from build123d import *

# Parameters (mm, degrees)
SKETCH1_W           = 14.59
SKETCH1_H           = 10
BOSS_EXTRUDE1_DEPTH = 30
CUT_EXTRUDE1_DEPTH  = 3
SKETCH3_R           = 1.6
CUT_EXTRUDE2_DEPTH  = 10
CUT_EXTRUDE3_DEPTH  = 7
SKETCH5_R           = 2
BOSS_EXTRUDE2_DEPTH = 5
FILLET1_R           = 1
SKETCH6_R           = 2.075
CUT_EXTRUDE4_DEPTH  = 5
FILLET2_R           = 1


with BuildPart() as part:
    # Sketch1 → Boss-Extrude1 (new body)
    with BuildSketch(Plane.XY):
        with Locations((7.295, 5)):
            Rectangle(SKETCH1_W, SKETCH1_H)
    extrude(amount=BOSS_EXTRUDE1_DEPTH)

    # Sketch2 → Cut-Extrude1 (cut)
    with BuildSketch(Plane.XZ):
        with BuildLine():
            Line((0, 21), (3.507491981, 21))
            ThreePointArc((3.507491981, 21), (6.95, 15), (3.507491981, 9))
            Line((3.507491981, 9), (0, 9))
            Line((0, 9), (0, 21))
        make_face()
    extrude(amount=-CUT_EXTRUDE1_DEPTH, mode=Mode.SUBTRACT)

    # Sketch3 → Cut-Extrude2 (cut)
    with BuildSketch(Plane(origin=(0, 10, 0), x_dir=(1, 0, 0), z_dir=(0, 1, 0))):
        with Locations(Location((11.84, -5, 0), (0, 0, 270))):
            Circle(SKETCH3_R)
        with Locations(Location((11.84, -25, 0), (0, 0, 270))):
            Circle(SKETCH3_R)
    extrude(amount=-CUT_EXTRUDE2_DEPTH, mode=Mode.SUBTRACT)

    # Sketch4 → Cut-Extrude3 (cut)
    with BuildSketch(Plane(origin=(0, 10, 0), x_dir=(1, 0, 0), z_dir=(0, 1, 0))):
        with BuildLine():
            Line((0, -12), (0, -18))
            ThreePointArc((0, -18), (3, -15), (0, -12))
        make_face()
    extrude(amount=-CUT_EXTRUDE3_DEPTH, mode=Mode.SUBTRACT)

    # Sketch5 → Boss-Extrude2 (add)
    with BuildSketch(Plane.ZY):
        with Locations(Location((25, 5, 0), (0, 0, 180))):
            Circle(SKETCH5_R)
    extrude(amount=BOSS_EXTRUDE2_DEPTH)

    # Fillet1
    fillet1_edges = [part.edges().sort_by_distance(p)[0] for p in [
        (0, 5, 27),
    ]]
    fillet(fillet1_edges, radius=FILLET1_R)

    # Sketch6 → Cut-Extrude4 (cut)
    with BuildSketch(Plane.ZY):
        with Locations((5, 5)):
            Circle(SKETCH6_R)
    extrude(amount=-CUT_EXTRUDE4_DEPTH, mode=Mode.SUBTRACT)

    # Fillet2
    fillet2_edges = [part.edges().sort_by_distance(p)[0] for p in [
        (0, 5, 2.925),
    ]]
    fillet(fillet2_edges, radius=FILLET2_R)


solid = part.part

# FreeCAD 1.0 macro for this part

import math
import FreeCAD as App
import Part
import Sketcher

V = App.Vector


def edges_at(feature, points):
    """Names of the edges that pass closest to the given points."""
    edges = feature.Shape.Edges
    near = lambda p: min(range(len(edges)), key=lambda i: edges[i].distToShape(Part.Vertex(*p))[0])
    return sorted({f"Edge{near(p) + 1}" for p in points})

doc = App.newDocument("Part")
body = doc.addObject("PartDesign::Body", "Body")

sketch1 = body.newObject("Sketcher::SketchObject", "Sketch")
sketch1.AttachmentSupport = (doc.getObject("XY_Plane"), [""])
sketch1.MapMode = "FlatFace"
sketch1.addGeometry([
    Part.LineSegment(V(0, 10, 0), V(0, 0, 0)),
    Part.LineSegment(V(0, 0, 0), V(14.59, 0, 0)),
    Part.LineSegment(V(14.59, 0, 0), V(14.59, 10, 0)),
    Part.LineSegment(V(14.59, 10, 0), V(0, 10, 0)),
], False)
sketch1.addConstraint([
    Sketcher.Constraint("Coincident", 0, 2, 1, 1),
    Sketcher.Constraint("Coincident", 1, 2, 2, 1),
    Sketcher.Constraint("Coincident", 2, 2, 3, 1),
    Sketcher.Constraint("Coincident", 3, 2, 0, 1),
    Sketcher.Constraint("Vertical", 0),
    Sketcher.Constraint("Horizontal", 1),
    Sketcher.Constraint("Vertical", 2),
    Sketcher.Constraint("Horizontal", 3),
    Sketcher.Constraint("Coincident", 0, 2, -1, 1),
    Sketcher.Constraint("DistanceY", 0, 2, 0, 1, 10.0),
    Sketcher.Constraint("DistanceX", 1, 1, 1, 2, 14.59),
])
pad1 = body.newObject("PartDesign::Pad", "Pad")
pad1.Profile = sketch1
pad1.Length = 30

sketch2 = body.newObject("Sketcher::SketchObject", "Sketch001")
sketch2.AttachmentSupport = (doc.getObject("XZ_Plane"), [""])
sketch2.MapMode = "FlatFace"
sketch2.addGeometry([
    Part.LineSegment(V(3.507492, 21, 0), V(0, 21, 0)),
    Part.LineSegment(V(0, 21, 0), V(0, 9, 0)),
    Part.LineSegment(V(0, 9, 0), V(3.507492, 9, 0)),
    Part.ArcOfCircle(Part.Circle(V(0, 15, 0), V(0, 0, 1), 6.95), math.radians(-59.690213), math.radians(59.690213)),
], False)
sketch2.addConstraint([
    Sketcher.Constraint("Coincident", 0, 2, 1, 1),
    Sketcher.Constraint("Coincident", 1, 2, 2, 1),
    Sketcher.Constraint("Coincident", 2, 2, 3, 1),
    Sketcher.Constraint("Coincident", 3, 2, 0, 1),
    Sketcher.Constraint("Horizontal", 0),
    Sketcher.Constraint("Vertical", 1),
    Sketcher.Constraint("Horizontal", 2),
    Sketcher.Constraint("PointOnObject", 3, 3, -2),
    Sketcher.Constraint("PointOnObject", 0, 2, -2),
    Sketcher.Constraint("Vertical", 2, 2, 3, 2),
    Sketcher.Constraint("DistanceY", 1, 2, 1, 1, 12.0),
    Sketcher.Constraint("Radius", 3, 6.95),
    Sketcher.Constraint("DistanceY", -1, 1, 3, 3, 15.0),
])
pocket1 = body.newObject("PartDesign::Pocket", "Pocket")
pocket1.Profile = sketch2
pocket1.Length = 3

sketch3 = body.newObject("Sketcher::SketchObject", "Sketch002")
sketch3.AttachmentSupport = (doc.getObject("XZ_Plane"), [""])
sketch3.MapMode = "FlatFace"
sketch3.AttachmentOffset = App.Placement(V(0, 0, -10), App.Rotation())
sketch3.addGeometry([
    Part.Circle(V(11.84, 5, 0), V(0, 0, 1), 1.6),
    Part.Circle(V(11.84, 25, 0), V(0, 0, 1), 1.6),
], False)
sketch3.addConstraint([
    Sketcher.Constraint("Equal", 0, 1),
    Sketcher.Constraint("Vertical", 0, 3, 1, 3),
    Sketcher.Constraint("Diameter", 0, 3.2),
    Sketcher.Constraint("DistanceY", -1, 1, 0, 3, 5.0),
    Sketcher.Constraint("DistanceY", -1, 1, 1, 3, 25.0),
    Sketcher.Constraint("DistanceX", -1, 1, 0, 3, 11.84),
])
pocket2 = body.newObject("PartDesign::Pocket", "Pocket001")
pocket2.Profile = sketch3
pocket2.Length = 10
pocket2.Reversed = True

sketch4 = body.newObject("Sketcher::SketchObject", "Sketch003")
sketch4.AttachmentSupport = (doc.getObject("XZ_Plane"), [""])
sketch4.MapMode = "FlatFace"
sketch4.AttachmentOffset = App.Placement(V(0, 0, -10), App.Rotation())
sketch4.addGeometry([
    Part.LineSegment(V(0, 12, 0), V(0, 18, 0)),
    Part.ArcOfCircle(Part.Circle(V(0, 15, 0), V(0, 0, 1), 3), math.radians(-90), math.radians(90)),
], False)
sketch4.addConstraint([
    Sketcher.Constraint("Coincident", 0, 1, 1, 1),
    Sketcher.Constraint("Coincident", 1, 2, 0, 2),
    Sketcher.Constraint("Vertical", 0),
    Sketcher.Constraint("PointOnObject", 1, 3, -2),
    Sketcher.Constraint("PointOnObject", 0, 1, -2),
    Sketcher.Constraint("Radius", 1, 3.0),
    Sketcher.Constraint("DistanceY", -1, 1, 1, 3, 15.0),
])
pocket3 = body.newObject("PartDesign::Pocket", "Pocket002")
pocket3.Profile = sketch4
pocket3.Length = 7
pocket3.Reversed = True

sketch5 = body.newObject("Sketcher::SketchObject", "Sketch004")
sketch5.AttachmentSupport = (doc.getObject("YZ_Plane"), [""])
sketch5.MapMode = "FlatFace"
sketch5.addGeometry(Part.Circle(V(5, 25, 0), V(0, 0, 1), 2), False)
sketch5.addConstraint([
    Sketcher.Constraint("Diameter", 0, 4.0),
    Sketcher.Constraint("DistanceX", -1, 1, 0, 3, 5.0),
    Sketcher.Constraint("DistanceY", -1, 1, 0, 3, 25.0),
])
pad2 = body.newObject("PartDesign::Pad", "Pad001")
pad2.Profile = sketch5
pad2.Length = 5
pad2.Reversed = True
doc.recompute()

fillet = body.newObject("PartDesign::Fillet", "Fillet")
fillet.Base = (pad2, edges_at(pad2, [(0, 5, 27)]))
fillet.Radius = 1

sketch6 = body.newObject("Sketcher::SketchObject", "Sketch005")
sketch6.AttachmentSupport = (doc.getObject("YZ_Plane"), [""])
sketch6.MapMode = "FlatFace"
sketch6.addGeometry(Part.Circle(V(5, 5, 0), V(0, 0, 1), 2.075), False)
sketch6.addConstraint([
    Sketcher.Constraint("Diameter", 0, 4.15),
    Sketcher.Constraint("DistanceX", -1, 1, 0, 3, 5.0),
    Sketcher.Constraint("DistanceY", -1, 1, 0, 3, 5.0),
])
pocket4 = body.newObject("PartDesign::Pocket", "Pocket003")
pocket4.Profile = sketch6
pocket4.Length = 5
pocket4.Reversed = True
doc.recompute()

fillet2 = body.newObject("PartDesign::Fillet", "Fillet001")
fillet2.Base = (pocket4, edges_at(pocket4, [(0, 5, 2.925)]))
fillet2.Radius = 1

doc.recompute()
